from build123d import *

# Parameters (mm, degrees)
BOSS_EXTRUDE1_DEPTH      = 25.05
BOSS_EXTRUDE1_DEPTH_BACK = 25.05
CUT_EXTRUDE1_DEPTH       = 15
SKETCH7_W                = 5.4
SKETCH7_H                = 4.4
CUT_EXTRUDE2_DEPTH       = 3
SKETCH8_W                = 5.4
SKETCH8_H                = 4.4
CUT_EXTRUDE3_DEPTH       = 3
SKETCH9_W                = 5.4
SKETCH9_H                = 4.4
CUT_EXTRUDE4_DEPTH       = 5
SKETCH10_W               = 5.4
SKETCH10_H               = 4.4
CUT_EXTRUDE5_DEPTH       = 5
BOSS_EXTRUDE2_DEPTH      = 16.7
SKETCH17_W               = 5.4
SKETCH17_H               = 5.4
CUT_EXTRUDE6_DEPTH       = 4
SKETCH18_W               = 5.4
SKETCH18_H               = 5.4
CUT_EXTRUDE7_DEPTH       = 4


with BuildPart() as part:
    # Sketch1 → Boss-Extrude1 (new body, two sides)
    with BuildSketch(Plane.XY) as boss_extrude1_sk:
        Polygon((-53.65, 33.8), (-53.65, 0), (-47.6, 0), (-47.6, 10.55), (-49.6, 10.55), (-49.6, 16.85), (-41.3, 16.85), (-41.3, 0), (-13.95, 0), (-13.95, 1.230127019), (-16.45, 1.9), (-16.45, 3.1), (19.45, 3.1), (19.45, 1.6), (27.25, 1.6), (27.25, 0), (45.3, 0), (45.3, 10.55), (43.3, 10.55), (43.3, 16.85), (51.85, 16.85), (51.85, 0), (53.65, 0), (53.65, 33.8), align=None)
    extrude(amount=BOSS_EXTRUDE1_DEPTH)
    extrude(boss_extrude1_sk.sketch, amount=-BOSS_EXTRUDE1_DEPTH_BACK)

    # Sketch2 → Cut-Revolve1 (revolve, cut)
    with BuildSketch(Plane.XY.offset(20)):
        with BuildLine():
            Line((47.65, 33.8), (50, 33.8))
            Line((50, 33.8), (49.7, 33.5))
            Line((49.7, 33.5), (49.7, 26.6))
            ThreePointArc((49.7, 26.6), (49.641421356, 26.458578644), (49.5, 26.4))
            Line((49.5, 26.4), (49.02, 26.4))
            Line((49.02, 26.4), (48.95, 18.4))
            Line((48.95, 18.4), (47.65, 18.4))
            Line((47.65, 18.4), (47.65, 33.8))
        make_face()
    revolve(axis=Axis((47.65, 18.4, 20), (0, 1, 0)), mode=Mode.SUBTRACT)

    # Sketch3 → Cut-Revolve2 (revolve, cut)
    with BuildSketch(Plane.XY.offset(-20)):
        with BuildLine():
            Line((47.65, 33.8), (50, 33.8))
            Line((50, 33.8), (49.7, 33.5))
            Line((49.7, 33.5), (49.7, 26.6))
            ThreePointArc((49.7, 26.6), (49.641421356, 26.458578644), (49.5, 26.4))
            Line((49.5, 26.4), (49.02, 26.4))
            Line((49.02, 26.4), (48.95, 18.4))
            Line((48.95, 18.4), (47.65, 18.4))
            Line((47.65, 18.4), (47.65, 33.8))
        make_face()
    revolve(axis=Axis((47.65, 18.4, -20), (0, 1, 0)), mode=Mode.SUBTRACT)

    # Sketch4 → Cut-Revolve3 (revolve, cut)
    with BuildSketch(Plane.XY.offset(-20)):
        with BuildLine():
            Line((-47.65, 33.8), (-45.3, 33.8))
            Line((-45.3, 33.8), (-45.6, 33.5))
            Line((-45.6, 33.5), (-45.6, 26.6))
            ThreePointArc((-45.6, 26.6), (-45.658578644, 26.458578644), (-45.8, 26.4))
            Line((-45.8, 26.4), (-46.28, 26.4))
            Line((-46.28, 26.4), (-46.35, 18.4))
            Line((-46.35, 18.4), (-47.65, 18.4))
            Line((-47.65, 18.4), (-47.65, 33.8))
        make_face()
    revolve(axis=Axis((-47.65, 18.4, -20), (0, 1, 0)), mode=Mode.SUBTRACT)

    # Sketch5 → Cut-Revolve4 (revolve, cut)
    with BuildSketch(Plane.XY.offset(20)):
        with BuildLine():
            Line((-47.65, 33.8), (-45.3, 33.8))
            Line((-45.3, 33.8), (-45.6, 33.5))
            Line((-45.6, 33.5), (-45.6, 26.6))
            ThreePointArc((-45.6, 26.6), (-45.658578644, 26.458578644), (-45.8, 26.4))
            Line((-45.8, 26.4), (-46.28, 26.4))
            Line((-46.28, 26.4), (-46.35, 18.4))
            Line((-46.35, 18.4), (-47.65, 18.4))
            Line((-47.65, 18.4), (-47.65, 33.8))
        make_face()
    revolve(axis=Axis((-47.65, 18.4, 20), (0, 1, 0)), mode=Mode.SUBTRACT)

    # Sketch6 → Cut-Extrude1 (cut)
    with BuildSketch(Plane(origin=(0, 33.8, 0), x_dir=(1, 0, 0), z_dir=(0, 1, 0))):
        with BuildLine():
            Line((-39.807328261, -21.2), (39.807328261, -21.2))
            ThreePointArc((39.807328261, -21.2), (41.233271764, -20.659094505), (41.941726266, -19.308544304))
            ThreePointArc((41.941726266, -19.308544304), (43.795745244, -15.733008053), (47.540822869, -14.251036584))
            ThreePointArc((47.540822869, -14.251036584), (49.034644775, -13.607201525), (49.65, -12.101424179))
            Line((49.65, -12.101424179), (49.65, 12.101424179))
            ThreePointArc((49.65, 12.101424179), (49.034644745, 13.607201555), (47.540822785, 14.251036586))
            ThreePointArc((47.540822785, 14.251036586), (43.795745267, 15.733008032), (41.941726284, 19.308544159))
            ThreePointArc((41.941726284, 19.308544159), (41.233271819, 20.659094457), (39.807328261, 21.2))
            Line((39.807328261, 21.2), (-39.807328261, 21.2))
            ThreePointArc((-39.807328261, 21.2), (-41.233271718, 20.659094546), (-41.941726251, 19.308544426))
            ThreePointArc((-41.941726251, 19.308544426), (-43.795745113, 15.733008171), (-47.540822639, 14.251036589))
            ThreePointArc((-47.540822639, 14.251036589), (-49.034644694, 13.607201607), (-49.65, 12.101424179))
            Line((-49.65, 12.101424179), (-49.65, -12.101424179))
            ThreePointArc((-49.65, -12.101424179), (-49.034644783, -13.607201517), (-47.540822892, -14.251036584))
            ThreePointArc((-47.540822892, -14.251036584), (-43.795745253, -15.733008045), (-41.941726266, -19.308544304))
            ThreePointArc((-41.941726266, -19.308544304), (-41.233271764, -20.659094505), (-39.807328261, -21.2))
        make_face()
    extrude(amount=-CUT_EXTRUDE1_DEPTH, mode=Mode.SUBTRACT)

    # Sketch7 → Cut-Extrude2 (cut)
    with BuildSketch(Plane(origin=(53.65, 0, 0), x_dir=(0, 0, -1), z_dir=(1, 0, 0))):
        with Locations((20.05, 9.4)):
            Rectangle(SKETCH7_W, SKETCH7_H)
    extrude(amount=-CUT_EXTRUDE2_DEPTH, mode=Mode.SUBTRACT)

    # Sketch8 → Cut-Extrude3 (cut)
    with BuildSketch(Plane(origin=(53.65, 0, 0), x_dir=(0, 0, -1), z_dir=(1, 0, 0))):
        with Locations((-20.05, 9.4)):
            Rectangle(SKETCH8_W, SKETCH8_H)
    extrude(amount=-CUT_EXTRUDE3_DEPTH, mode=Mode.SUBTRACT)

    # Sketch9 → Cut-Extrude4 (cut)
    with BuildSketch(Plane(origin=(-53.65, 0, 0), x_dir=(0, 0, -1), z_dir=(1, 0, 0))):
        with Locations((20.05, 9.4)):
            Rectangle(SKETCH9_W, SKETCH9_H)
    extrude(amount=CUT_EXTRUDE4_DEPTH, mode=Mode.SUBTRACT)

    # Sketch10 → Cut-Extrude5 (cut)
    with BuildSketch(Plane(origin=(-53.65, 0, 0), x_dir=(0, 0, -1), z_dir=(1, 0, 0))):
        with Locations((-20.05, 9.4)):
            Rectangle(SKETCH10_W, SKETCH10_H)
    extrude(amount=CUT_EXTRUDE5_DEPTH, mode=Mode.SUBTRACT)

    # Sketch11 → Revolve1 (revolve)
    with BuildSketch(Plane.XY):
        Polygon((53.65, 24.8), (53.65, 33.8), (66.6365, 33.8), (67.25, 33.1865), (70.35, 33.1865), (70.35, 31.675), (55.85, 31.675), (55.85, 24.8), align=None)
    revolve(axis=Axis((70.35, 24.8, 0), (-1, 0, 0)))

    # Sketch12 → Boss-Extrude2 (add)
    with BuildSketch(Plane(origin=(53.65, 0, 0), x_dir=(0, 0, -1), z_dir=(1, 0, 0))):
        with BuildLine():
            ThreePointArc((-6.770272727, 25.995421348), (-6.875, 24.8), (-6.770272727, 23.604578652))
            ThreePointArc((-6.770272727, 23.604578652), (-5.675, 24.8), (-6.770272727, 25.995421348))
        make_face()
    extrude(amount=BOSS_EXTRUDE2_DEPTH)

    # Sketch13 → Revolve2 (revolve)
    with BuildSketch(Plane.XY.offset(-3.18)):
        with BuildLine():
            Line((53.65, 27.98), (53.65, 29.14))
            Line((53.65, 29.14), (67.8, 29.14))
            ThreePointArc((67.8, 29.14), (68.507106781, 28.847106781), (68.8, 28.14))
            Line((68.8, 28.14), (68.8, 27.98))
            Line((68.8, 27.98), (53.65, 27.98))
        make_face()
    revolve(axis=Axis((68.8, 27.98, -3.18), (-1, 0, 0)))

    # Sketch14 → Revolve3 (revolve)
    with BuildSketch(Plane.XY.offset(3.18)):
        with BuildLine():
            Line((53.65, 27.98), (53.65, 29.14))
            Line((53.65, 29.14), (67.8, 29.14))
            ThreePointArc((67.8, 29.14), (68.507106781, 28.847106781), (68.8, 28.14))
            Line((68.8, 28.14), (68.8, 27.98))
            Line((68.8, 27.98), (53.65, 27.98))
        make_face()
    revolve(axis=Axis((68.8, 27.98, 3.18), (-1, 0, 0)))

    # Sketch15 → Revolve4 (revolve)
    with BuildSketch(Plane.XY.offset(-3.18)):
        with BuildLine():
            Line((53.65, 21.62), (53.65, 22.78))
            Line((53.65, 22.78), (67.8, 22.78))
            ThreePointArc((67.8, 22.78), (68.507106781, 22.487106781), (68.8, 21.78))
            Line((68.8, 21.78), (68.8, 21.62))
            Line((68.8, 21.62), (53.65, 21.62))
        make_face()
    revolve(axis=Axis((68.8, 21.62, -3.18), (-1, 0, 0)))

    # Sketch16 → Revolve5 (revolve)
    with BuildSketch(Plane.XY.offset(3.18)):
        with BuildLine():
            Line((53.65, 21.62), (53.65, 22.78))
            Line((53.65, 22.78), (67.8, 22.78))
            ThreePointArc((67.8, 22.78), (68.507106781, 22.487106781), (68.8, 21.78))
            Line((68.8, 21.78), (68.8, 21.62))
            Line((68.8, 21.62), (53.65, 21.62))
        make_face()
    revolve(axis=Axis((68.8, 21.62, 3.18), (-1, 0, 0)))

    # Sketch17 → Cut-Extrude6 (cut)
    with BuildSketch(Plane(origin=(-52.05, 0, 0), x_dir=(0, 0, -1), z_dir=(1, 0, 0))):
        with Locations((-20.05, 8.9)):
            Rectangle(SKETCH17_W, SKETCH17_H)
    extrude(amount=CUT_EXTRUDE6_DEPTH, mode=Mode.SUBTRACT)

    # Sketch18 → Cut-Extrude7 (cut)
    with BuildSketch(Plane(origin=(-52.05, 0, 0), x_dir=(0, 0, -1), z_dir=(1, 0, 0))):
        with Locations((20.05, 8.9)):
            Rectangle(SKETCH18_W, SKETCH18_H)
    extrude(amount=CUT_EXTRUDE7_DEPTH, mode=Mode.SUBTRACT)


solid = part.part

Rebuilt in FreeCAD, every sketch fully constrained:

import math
import FreeCAD as App
import Part
import Sketcher
Q = App.Units.Quantity

doc = App.newDocument("Part")
body = doc.addObject("PartDesign::Body", "Body")

# Sketch on XY plane
sketch1 = body.newObject("Sketcher::SketchObject", "Sketch")
sketch1.AttachmentSupport = (doc.getObject("XY_Plane"), [""])
sketch1.MapMode = "FlatFace"
sketch1.addGeometry([
    Part.LineSegment(App.Vector(-53.6, 33.8, 0), App.Vector(-53.6, 0, 0)),  # 0
    Part.LineSegment(App.Vector(-53.6, 0, 0), App.Vector(-47.6, 0, 0)),  # 1
    Part.LineSegment(App.Vector(-47.6, 0, 0), App.Vector(-47.6, 10.6, 0)),  # 2
    Part.LineSegment(App.Vector(-47.6, 10.6, 0), App.Vector(-49.6, 10.6, 0)),  # 3
    Part.LineSegment(App.Vector(-49.6, 10.6, 0), App.Vector(-49.6, 16.9, 0)),  # 4
    Part.LineSegment(App.Vector(-49.6, 16.9, 0), App.Vector(-41.3, 16.9, 0)),  # 5
    Part.LineSegment(App.Vector(-41.3, 16.9, 0), App.Vector(-41.3, 0, 0)),  # 6
    Part.LineSegment(App.Vector(-41.3, 0, 0), App.Vector(-13.9, 0, 0)),  # 7
    Part.LineSegment(App.Vector(-13.9, 0, 0), App.Vector(-13.9, 1.2, 0)),  # 8
    Part.LineSegment(App.Vector(-13.9, 1.2, 0), App.Vector(-16.4, 1.9, 0)),  # 9
    Part.LineSegment(App.Vector(-16.4, 1.9, 0), App.Vector(-16.4, 3.1, 0)),  # 10
    Part.LineSegment(App.Vector(-16.4, 3.1, 0), App.Vector(19.4, 3.1, 0)),  # 11
    Part.LineSegment(App.Vector(19.4, 3.1, 0), App.Vector(19.4, 1.6, 0)),  # 12
    Part.LineSegment(App.Vector(19.4, 1.6, 0), App.Vector(27.2, 1.6, 0)),  # 13
    Part.LineSegment(App.Vector(27.2, 1.6, 0), App.Vector(27.2, 0, 0)),  # 14
    Part.LineSegment(App.Vector(27.2, 0, 0), App.Vector(45.3, 0, 0)),  # 15
    Part.LineSegment(App.Vector(45.3, 0, 0), App.Vector(45.3, 10.6, 0)),  # 16
    Part.LineSegment(App.Vector(45.3, 10.6, 0), App.Vector(43.3, 10.6, 0)),  # 17
    Part.LineSegment(App.Vector(43.3, 10.6, 0), App.Vector(43.3, 16.9, 0)),  # 18
    Part.LineSegment(App.Vector(43.3, 16.9, 0), App.Vector(51.9, 16.9, 0)),  # 19
    Part.LineSegment(App.Vector(51.9, 16.9, 0), App.Vector(51.9, 0, 0)),  # 20
    Part.LineSegment(App.Vector(51.9, 0, 0), App.Vector(53.6, 0, 0)),  # 21
    Part.LineSegment(App.Vector(53.6, 0, 0), App.Vector(53.6, 33.8, 0)),  # 22
    Part.LineSegment(App.Vector(53.6, 33.8, 0), App.Vector(-53.6, 33.8, 0)),  # 23
], False)
sketch1.addConstraint([
    Sketcher.Constraint("Coincident", 0, 2, 1, 1),
    Sketcher.Constraint("Coincident", 1, 2, 2, 1),
    Sketcher.Constraint("Coincident", 2, 2, 3, 1),
    Sketcher.Constraint("Coincident", 3, 2, 4, 1),
    Sketcher.Constraint("Coincident", 4, 2, 5, 1),
    Sketcher.Constraint("Coincident", 5, 2, 6, 1),
    Sketcher.Constraint("Coincident", 6, 2, 7, 1),
    Sketcher.Constraint("Coincident", 7, 2, 8, 1),
    Sketcher.Constraint("Coincident", 8, 2, 9, 1),
    Sketcher.Constraint("Coincident", 9, 2, 10, 1),
    Sketcher.Constraint("Coincident", 10, 2, 11, 1),
    Sketcher.Constraint("Coincident", 11, 2, 12, 1),
    Sketcher.Constraint("Coincident", 12, 2, 13, 1),
    Sketcher.Constraint("Coincident", 13, 2, 14, 1),
    Sketcher.Constraint("Coincident", 14, 2, 15, 1),
    Sketcher.Constraint("Coincident", 15, 2, 16, 1),
    Sketcher.Constraint("Coincident", 16, 2, 17, 1),
    Sketcher.Constraint("Coincident", 17, 2, 18, 1),
    Sketcher.Constraint("Coincident", 18, 2, 19, 1),
    Sketcher.Constraint("Coincident", 19, 2, 20, 1),
    Sketcher.Constraint("Coincident", 20, 2, 21, 1),
    Sketcher.Constraint("Coincident", 21, 2, 22, 1),
    Sketcher.Constraint("Coincident", 22, 2, 23, 1),
    Sketcher.Constraint("Coincident", 23, 2, 0, 1),
    Sketcher.Constraint("Vertical", 0),
    Sketcher.Constraint("Horizontal", 1),
    Sketcher.Constraint("Vertical", 2),
    Sketcher.Constraint("Horizontal", 3),
    Sketcher.Constraint("Vertical", 4),
    Sketcher.Constraint("Horizontal", 5),
    Sketcher.Constraint("Vertical", 6),
    Sketcher.Constraint("Horizontal", 7),
    Sketcher.Constraint("Vertical", 8),
    Sketcher.Constraint("Vertical", 10),
    Sketcher.Constraint("Horizontal", 11),
    Sketcher.Constraint("Vertical", 12),
    Sketcher.Constraint("Horizontal", 13),
    Sketcher.Constraint("Vertical", 14),
    Sketcher.Constraint("Horizontal", 15),
    Sketcher.Constraint("Vertical", 16),
    Sketcher.Constraint("Horizontal", 17),
    Sketcher.Constraint("Vertical", 18),
    Sketcher.Constraint("Horizontal", 19),
    Sketcher.Constraint("Vertical", 20),
    Sketcher.Constraint("Horizontal", 21),
    Sketcher.Constraint("Vertical", 22),
    Sketcher.Constraint("Horizontal", 23),
    Sketcher.Constraint("Symmetric", 0, 2, 21, 2, -1, 1),
    Sketcher.Constraint("PointOnObject", 0, 2, -1),
    Sketcher.Constraint("PointOnObject", 6, 2, -1),
    Sketcher.Constraint("PointOnObject", 14, 2, -1),
    Sketcher.Constraint("Horizontal", 3, 2, 16, 2),
    Sketcher.Constraint("Horizontal", 5, 2, 18, 2),
    Sketcher.Constraint("Equal", 3, 17),
    Sketcher.Constraint("DistanceX", 3, 2, 3, 1, 2.0),
    Sketcher.Constraint("Angle", 9, Q("165 deg")),
    Sketcher.Constraint("DistanceX", 5, 1, 5, 2, 8.3),
    Sketcher.Constraint("DistanceX", 11, 1, 11, 2, 35.9),
    Sketcher.Constraint("DistanceX", 13, 1, 13, 2, 7.8),
    Sketcher.Constraint("DistanceX", 21, 1, 21, 2, 1.8),
    Sketcher.Constraint("DistanceX", 23, 2, 23, 1, 107.3),
    Sketcher.Constraint("DistanceY", 0, 2, 0, 1, 33.8),
    Sketcher.Constraint("DistanceY", 4, 1, 4, 2, 6.3),
    Sketcher.Constraint("DistanceY", 10, 1, 10, 2, 1.2),
    Sketcher.Constraint("DistanceY", 12, 2, 12, 1, 1.5),
    Sketcher.Constraint("DistanceY", 14, 2, 14, 1, 1.6),
    Sketcher.Constraint("DistanceX", 1, 1, 1, 2, 6.05),
    Sketcher.Constraint("DistanceX", 7, 1, 7, 2, 27.35),
    Sketcher.Constraint("DistanceX", 15, 1, 15, 2, 18.05),
    Sketcher.Constraint("DistanceX", 19, 1, 19, 2, 8.55),
    Sketcher.Constraint("DistanceY", 2, 1, 2, 2, 10.55),
])
pad1 = body.newObject("PartDesign::Pad", "Pad")
pad1.Profile = sketch1
pad1.Type = "TwoLengths"
pad1.Length = 25.05
pad1.Length2 = 25.05

# Sketch on XY plane
sketch2 = body.newObject("Sketcher::SketchObject", "Sketch001")
sketch2.AttachmentSupport = (doc.getObject("XY_Plane"), [""])
sketch2.MapMode = "FlatFace"
sketch2.AttachmentOffset = App.Placement(App.Vector(0, 0, 20), App.Rotation())
sketch2.addGeometry([
    Part.LineSegment(App.Vector(50, 33.8, 0), App.Vector(47.65, 33.8, 0)),  # 0
    Part.LineSegment(App.Vector(47.65, 33.8, 0), App.Vector(47.65, 18.4, 0)),  # 1
    Part.LineSegment(App.Vector(47.65, 18.4, 0), App.Vector(48.95, 18.4, 0)),  # 2
    Part.LineSegment(App.Vector(48.95, 18.4, 0), App.Vector(49.02, 26.4, 0)),  # 3
    Part.LineSegment(App.Vector(49.02, 26.4, 0), App.Vector(49.5, 26.4, 0)),  # 4
    Part.ArcOfCircle(Part.Circle(App.Vector(49.5, 26.6, 0), App.Vector(0, 0, 1), 0.2), math.radians(-90), math.radians(0)),  # 5
    Part.LineSegment(App.Vector(49.7, 26.6, 0), App.Vector(49.7, 33.5, 0)),  # 6
    Part.LineSegment(App.Vector(49.7, 33.5, 0), App.Vector(50, 33.8, 0)),  # 7
], False)
sketch2.addGeometry(Part.LineSegment(App.Vector(47.65, 18.4, 0), App.Vector(47.65, 33.8, 0)), True)  # axis
sketch2.addConstraint([
    Sketcher.Constraint("Coincident", 0, 2, 1, 1),
    Sketcher.Constraint("Coincident", 1, 2, 2, 1),
    Sketcher.Constraint("Coincident", 2, 2, 3, 1),
    Sketcher.Constraint("Coincident", 3, 2, 4, 1),
    Sketcher.Constraint("Tangent", 4, 2, 5, 1),
    Sketcher.Constraint("Tangent", 5, 2, 6, 1),
    Sketcher.Constraint("Coincident", 6, 2, 7, 1),
    Sketcher.Constraint("Coincident", 7, 2, 0, 1),
    Sketcher.Constraint("Horizontal", 0),
    Sketcher.Constraint("Vertical", 1),
    Sketcher.Constraint("Horizontal", 2),
    Sketcher.Constraint("Horizontal", 4),
    Sketcher.Constraint("Vertical", 6),
    Sketcher.Constraint("Vertical", 8),
    Sketcher.Constraint("Coincident", 8, 1, 1, 2),
    Sketcher.Constraint("Horizontal", 7, 2, 8, 2),
    Sketcher.Constraint("Radius", 5, 0.2),
    Sketcher.Constraint("Angle", 7, Q("45 deg")),
    Sketcher.Constraint("DistanceX", 2, 1, 2, 2, 1.3),
    Sketcher.Constraint("DistanceY", 1, 2, 1, 1, 15.4),
    Sketcher.Constraint("DistanceY", 6, 1, 6, 2, 6.9),
    Sketcher.Constraint("DistanceX", -1, 1, 7, 2, 50.0),
    Sketcher.Constraint("DistanceY", 2, 2, 3, 2, 8.0),
    Sketcher.Constraint("DistanceX", 0, 2, 0, 1, 2.35),
    Sketcher.Constraint("DistanceX", 4, 1, 4, 2, 0.48),
    Sketcher.Constraint("DistanceY", -1, 1, 5, 3, 26.6),
])
groove = body.newObject("PartDesign::Groove", "Groove")
groove.Profile = sketch2
groove.ReferenceAxis = (sketch2, ["Axis0"])
groove.Angle = 360

# Sketch on XY plane
sketch3 = body.newObject("Sketcher::SketchObject", "Sketch002")
sketch3.AttachmentSupport = (doc.getObject("XY_Plane"), [""])
sketch3.MapMode = "FlatFace"
sketch3.AttachmentOffset = App.Placement(App.Vector(0, 0, -20), App.Rotation())
sketch3.addGeometry([
    Part.LineSegment(App.Vector(50, 33.8, 0), App.Vector(47.65, 33.8, 0)),  # 0
    Part.LineSegment(App.Vector(47.65, 33.8, 0), App.Vector(47.65, 18.4, 0)),  # 1
    Part.LineSegment(App.Vector(47.65, 18.4, 0), App.Vector(48.95, 18.4, 0)),  # 2
    Part.LineSegment(App.Vector(48.95, 18.4, 0), App.Vector(49.02, 26.4, 0)),  # 3
    Part.LineSegment(App.Vector(49.02, 26.4, 0), App.Vector(49.5, 26.4, 0)),  # 4
    Part.ArcOfCircle(Part.Circle(App.Vector(49.5, 26.6, 0), App.Vector(0, 0, 1), 0.2), math.radians(-90), math.radians(0)),  # 5
    Part.LineSegment(App.Vector(49.7, 26.6, 0), App.Vector(49.7, 33.5, 0)),  # 6
    Part.LineSegment(App.Vector(49.7, 33.5, 0), App.Vector(50, 33.8, 0)),  # 7
], False)
sketch3.addGeometry(Part.LineSegment(App.Vector(47.65, 18.4, 0), App.Vector(47.65, 33.8, 0)), True)  # axis
sketch3.addConstraint([
    Sketcher.Constraint("Coincident", 0, 2, 1, 1),
    Sketcher.Constraint("Coincident", 1, 2, 2, 1),
    Sketcher.Constraint("Coincident", 2, 2, 3, 1),
    Sketcher.Constraint("Coincident", 3, 2, 4, 1),
    Sketcher.Constraint("Tangent", 4, 2, 5, 1),
    Sketcher.Constraint("Tangent", 5, 2, 6, 1),
    Sketcher.Constraint("Coincident", 6, 2, 7, 1),
    Sketcher.Constraint("Coincident", 7, 2, 0, 1),
    Sketcher.Constraint("Horizontal", 0),
    Sketcher.Constraint("Vertical", 1),
    Sketcher.Constraint("Horizontal", 2),
    Sketcher.Constraint("Horizontal", 4),
    Sketcher.Constraint("Vertical", 6),
    Sketcher.Constraint("Vertical", 8),
    Sketcher.Constraint("Coincident", 8, 1, 1, 2),
    Sketcher.Constraint("Horizontal", 7, 2, 8, 2),
    Sketcher.Constraint("Radius", 5, 0.2),
    Sketcher.Constraint("Angle", 7, Q("45 deg")),
    Sketcher.Constraint("DistanceX", 2, 1, 2, 2, 1.3),
    Sketcher.Constraint("DistanceY", 1, 2, 1, 1, 15.4),
    Sketcher.Constraint("DistanceY", 6, 1, 6, 2, 6.9),
    Sketcher.Constraint("DistanceX", -1, 1, 7, 2, 50.0),
    Sketcher.Constraint("DistanceY", 2, 2, 3, 2, 8.0),
    Sketcher.Constraint("DistanceX", 0, 2, 0, 1, 2.35),
    Sketcher.Constraint("DistanceX", 4, 1, 4, 2, 0.48),
    Sketcher.Constraint("DistanceY", -1, 1, 5, 3, 26.6),
])
groove2 = body.newObject("PartDesign::Groove", "Groove001")
groove2.Profile = sketch3
groove2.ReferenceAxis = (sketch3, ["Axis0"])
groove2.Angle = 360

# Sketch on XY plane
sketch4 = body.newObject("Sketcher::SketchObject", "Sketch003")
sketch4.AttachmentSupport = (doc.getObject("XY_Plane"), [""])
sketch4.MapMode = "FlatFace"
sketch4.AttachmentOffset = App.Placement(App.Vector(0, 0, -20), App.Rotation())
sketch4.addGeometry([
    Part.LineSegment(App.Vector(-45.3, 33.8, 0), App.Vector(-47.65, 33.8, 0)),  # 0
    Part.LineSegment(App.Vector(-47.65, 33.8, 0), App.Vector(-47.65, 18.4, 0)),  # 1
    Part.LineSegment(App.Vector(-47.65, 18.4, 0), App.Vector(-46.35, 18.4, 0)),  # 2
    Part.LineSegment(App.Vector(-46.35, 18.4, 0), App.Vector(-46.28, 26.4, 0)),  # 3
    Part.LineSegment(App.Vector(-46.28, 26.4, 0), App.Vector(-45.8, 26.4, 0)),  # 4
    Part.ArcOfCircle(Part.Circle(App.Vector(-45.8, 26.6, 0), App.Vector(0, 0, 1), 0.2), math.radians(-90), math.radians(0)),  # 5
    Part.LineSegment(App.Vector(-45.6, 26.6, 0), App.Vector(-45.6, 33.5, 0)),  # 6
    Part.LineSegment(App.Vector(-45.6, 33.5, 0), App.Vector(-45.3, 33.8, 0)),  # 7
], False)
sketch4.addGeometry(Part.LineSegment(App.Vector(-47.65, 18.4, 0), App.Vector(-47.65, 33.8, 0)), True)  # axis
sketch4.addConstraint([
    Sketcher.Constraint("Coincident", 0, 2, 1, 1),
    Sketcher.Constraint("Coincident", 1, 2, 2, 1),
    Sketcher.Constraint("Coincident", 2, 2, 3, 1),
    Sketcher.Constraint("Coincident", 3, 2, 4, 1),
    Sketcher.Constraint("Tangent", 4, 2, 5, 1),
    Sketcher.Constraint("Tangent", 5, 2, 6, 1),
    Sketcher.Constraint("Coincident", 6, 2, 7, 1),
    Sketcher.Constraint("Coincident", 7, 2, 0, 1),
    Sketcher.Constraint("Horizontal", 0),
    Sketcher.Constraint("Vertical", 1),
    Sketcher.Constraint("Horizontal", 2),
    Sketcher.Constraint("Horizontal", 4),
    Sketcher.Constraint("Vertical", 6),
    Sketcher.Constraint("Vertical", 8),
    Sketcher.Constraint("Coincident", 8, 1, 1, 2),
    Sketcher.Constraint("Horizontal", 7, 2, 8, 2),
    Sketcher.Constraint("Radius", 5, 0.2),
    Sketcher.Constraint("Angle", 7, Q("45 deg")),
    Sketcher.Constraint("DistanceX", 2, 1, 2, 2, 1.3),
    Sketcher.Constraint("DistanceY", 1, 2, 1, 1, 15.4),
    Sketcher.Constraint("DistanceY", 6, 1, 6, 2, 6.9),
    Sketcher.Constraint("DistanceY", 2, 2, 3, 2, 8.0),
    Sketcher.Constraint("DistanceX", 0, 2, 0, 1, 2.35),
    Sketcher.Constraint("DistanceX", 4, 1, 4, 2, 0.48),
    Sketcher.Constraint("DistanceX", 5, 3, -1, 1, 45.8),
    Sketcher.Constraint("DistanceY", -1, 1, 5, 3, 26.6),
])
groove3 = body.newObject("PartDesign::Groove", "Groove002")
groove3.Profile = sketch4
groove3.ReferenceAxis = (sketch4, ["Axis0"])
groove3.Angle = 360

# Sketch on XY plane
sketch5 = body.newObject("Sketcher::SketchObject", "Sketch004")
sketch5.AttachmentSupport = (doc.getObject("XY_Plane"), [""])
sketch5.MapMode = "FlatFace"
sketch5.AttachmentOffset = App.Placement(App.Vector(0, 0, 20), App.Rotation())
sketch5.addGeometry([
    Part.LineSegment(App.Vector(-45.3, 33.8, 0), App.Vector(-47.65, 33.8, 0)),  # 0
    Part.LineSegment(App.Vector(-47.65, 33.8, 0), App.Vector(-47.65, 18.4, 0)),  # 1
    Part.LineSegment(App.Vector(-47.65, 18.4, 0), App.Vector(-46.35, 18.4, 0)),  # 2
    Part.LineSegment(App.Vector(-46.35, 18.4, 0), App.Vector(-46.28, 26.4, 0)),  # 3
    Part.LineSegment(App.Vector(-46.28, 26.4, 0), App.Vector(-45.8, 26.4, 0)),  # 4
    Part.ArcOfCircle(Part.Circle(App.Vector(-45.8, 26.6, 0), App.Vector(0, 0, 1), 0.2), math.radians(-90), math.radians(0)),  # 5
    Part.LineSegment(App.Vector(-45.6, 26.6, 0), App.Vector(-45.6, 33.5, 0)),  # 6
    Part.LineSegment(App.Vector(-45.6, 33.5, 0), App.Vector(-45.3, 33.8, 0)),  # 7
], False)
sketch5.addGeometry(Part.LineSegment(App.Vector(-47.65, 18.4, 0), App.Vector(-47.65, 33.8, 0)), True)  # axis
sketch5.addConstraint([
    Sketcher.Constraint("Coincident", 0, 2, 1, 1),
    Sketcher.Constraint("Coincident", 1, 2, 2, 1),
    Sketcher.Constraint("Coincident", 2, 2, 3, 1),
    Sketcher.Constraint("Coincident", 3, 2, 4, 1),
    Sketcher.Constraint("Tangent", 4, 2, 5, 1),
    Sketcher.Constraint("Tangent", 5, 2, 6, 1),
    Sketcher.Constraint("Coincident", 6, 2, 7, 1),
    Sketcher.Constraint("Coincident", 7, 2, 0, 1),
    Sketcher.Constraint("Horizontal", 0),
    Sketcher.Constraint("Vertical", 1),
    Sketcher.Constraint("Horizontal", 2),
    Sketcher.Constraint("Horizontal", 4),
    Sketcher.Constraint("Vertical", 6),
    Sketcher.Constraint("Vertical", 8),
    Sketcher.Constraint("Coincident", 8, 1, 1, 2),
    Sketcher.Constraint("Horizontal", 7, 2, 8, 2),
    Sketcher.Constraint("Radius", 5, 0.2),
    Sketcher.Constraint("Angle", 7, Q("45 deg")),
    Sketcher.Constraint("DistanceX", 2, 1, 2, 2, 1.3),
    Sketcher.Constraint("DistanceY", 1, 2, 1, 1, 15.4),
    Sketcher.Constraint("DistanceY", 6, 1, 6, 2, 6.9),
    Sketcher.Constraint("DistanceY", 2, 2, 3, 2, 8.0),
    Sketcher.Constraint("DistanceX", 0, 2, 0, 1, 2.35),
    Sketcher.Constraint("DistanceX", 4, 1, 4, 2, 0.48),
    Sketcher.Constraint("DistanceX", 5, 3, -1, 1, 45.8),
    Sketcher.Constraint("DistanceY", -1, 1, 5, 3, 26.6),
])
groove4 = body.newObject("PartDesign::Groove", "Groove003")
groove4.Profile = sketch5
groove4.ReferenceAxis = (sketch5, ["Axis0"])
groove4.Angle = 360

# Sketch on XZ plane
sketch6 = body.newObject("Sketcher::SketchObject", "Sketch005")
sketch6.AttachmentSupport = (doc.getObject("XZ_Plane"), [""])
sketch6.MapMode = "FlatFace"
sketch6.AttachmentOffset = App.Placement(App.Vector(0, 0, -33.8), App.Rotation())
sketch6.addGeometry([
    Part.LineSegment(App.Vector(-39.8, 21.2, 0), App.Vector(39.8, 21.2, 0)),  # 0
    Part.ArcOfCircle(Part.Circle(App.Vector(39.8, 19, 0), App.Vector(0, 0, 1), 2.2), math.radians(7), math.radians(90)),  # 1
    Part.ArcOfCircle(Part.Circle(App.Vector(47.7, 20, 0), App.Vector(0, 0, 1), 5.8), math.radians(-173), math.radians(-91)),  # 2
    Part.ArcOfCircle(Part.Circle(App.Vector(47.5, 12.1, 0), App.Vector(0, 0, 1), 2.1), math.radians(0), math.radians(89)),  # 3
    Part.LineSegment(App.Vector(49.6, 12.1, 0), App.Vector(49.6, -12.1, 0)),  # 4
    Part.ArcOfCircle(Part.Circle(App.Vector(47.5, -12.1, 0), App.Vector(0, 0, 1), 2.1), math.radians(-89), math.radians(0)),  # 5
    Part.ArcOfCircle(Part.Circle(App.Vector(47.6, -20, 0), App.Vector(0, 0, 1), 5.7), math.radians(91), math.radians(173)),  # 6
    Part.ArcOfCircle(Part.Circle(App.Vector(39.8, -19.1, 0), App.Vector(0, 0, 1), 2.1), math.radians(-90), math.radians(-7)),  # 7
    Part.LineSegment(App.Vector(39.8, -21.2, 0), App.Vector(-39.8, -21.2, 0)),  # 8
    Part.ArcOfCircle(Part.Circle(App.Vector(-39.8, -19.1, 0), App.Vector(0, 0, 1), 2.1), math.radians(-173), math.radians(-90)),  # 9
    Part.ArcOfCircle(Part.Circle(App.Vector(-47.6, -20, 0), App.Vector(0, 0, 1), 5.8), math.radians(7), math.radians(89)),  # 10
    Part.ArcOfCircle(Part.Circle(App.Vector(-47.5, -12.1, 0), App.Vector(0, 0, 1), 2.2), math.radians(180), math.radians(269)),  # 11
    Part.LineSegment(App.Vector(-49.6, -12.1, 0), App.Vector(-49.6, 12.1, 0)),  # 12
    Part.ArcOfCircle(Part.Circle(App.Vector(-47.5, 12.1, 0), App.Vector(0, 0, 1), 2.1), math.radians(91), math.radians(180)),  # 13
    Part.ArcOfCircle(Part.Circle(App.Vector(-47.6, 20, 0), App.Vector(0, 0, 1), 5.8), math.radians(-89), math.radians(-7)),  # 14
    Part.ArcOfCircle(Part.Circle(App.Vector(-39.8, 19, 0), App.Vector(0, 0, 1), 2.2), math.radians(90), math.radians(173)),  # 15
], False)
sketch6.addConstraint([
    Sketcher.Constraint("Tangent", 0, 2, 1, 2),
    Sketcher.Constraint("Tangent", 1, 1, 2, 1),
    Sketcher.Constraint("Tangent", 2, 2, 3, 2),
    Sketcher.Constraint("Tangent", 3, 1, 4, 1),
    Sketcher.Constraint("Tangent", 4, 2, 5, 2),
    Sketcher.Constraint("Tangent", 5, 1, 6, 1),
    Sketcher.Constraint("Tangent", 6, 2, 7, 2),
    Sketcher.Constraint("Tangent", 7, 1, 8, 1),
    Sketcher.Constraint("Tangent", 8, 2, 9, 2),
    Sketcher.Constraint("Tangent", 9, 1, 10, 1),
    Sketcher.Constraint("Tangent", 10, 2, 11, 2),
    Sketcher.Constraint("Tangent", 11, 1, 12, 1),
    Sketcher.Constraint("Tangent", 12, 2, 13, 2),
    Sketcher.Constraint("Tangent", 13, 1, 14, 1),
    Sketcher.Constraint("Tangent", 14, 2, 15, 2),
    Sketcher.Constraint("Tangent", 15, 1, 0, 1),
    Sketcher.Constraint("Horizontal", 0),
    Sketcher.Constraint("Vertical", 4),
    Sketcher.Constraint("Horizontal", 8),
    Sketcher.Constraint("Vertical", 12),
    Sketcher.Constraint("Equal", 1, 3),
    Sketcher.Constraint("Equal", 3, 5),
    Sketcher.Constraint("Equal", 2, 6),
    Sketcher.Constraint("Equal", 5, 7),
    Sketcher.Constraint("Equal", 7, 9),
    Sketcher.Constraint("Equal", 6, 10),
    Sketcher.Constraint("Equal", 9, 11),
    Sketcher.Constraint("Equal", 11, 13),
    Sketcher.Constraint("Equal", 10, 14),
    Sketcher.Constraint("Equal", 13, 15),
    Sketcher.Constraint("Symmetric", 1, 3, 9, 3, -1, 1),
    Sketcher.Constraint("Symmetric", 3, 3, 11, 3, -1, 1),
    Sketcher.Constraint("Symmetric", 6, 3, 14, 3, -1, 1),
    Sketcher.Constraint("Symmetric", 6, 3, 10, 3, -2),
    Sketcher.Constraint("Radius", 1, 2.15),
    Sketcher.Constraint("Radius", 2, 5.75),
    Sketcher.Constraint("DistanceY", -1, 1, 2, 3, 20.0),
    Sketcher.Constraint("DistanceX", 11, 3, 5, 3, 95.0),
    Sketcher.Constraint("DistanceX", 2, 3, 3, 1, 2.0),
    Sketcher.Constraint("DistanceY", -1, 1, 0, 2, 21.2),
])
pocket1 = body.newObject("PartDesign::Pocket", "Pocket")
pocket1.Profile = sketch6
pocket1.Length = 15
pocket1.Reversed = True

# Sketch on YZ plane
sketch7 = body.newObject("Sketcher::SketchObject", "Sketch006")
sketch7.AttachmentSupport = (doc.getObject("YZ_Plane"), [""])
sketch7.MapMode = "FlatFace"
sketch7.AttachmentOffset = App.Placement(App.Vector(0, 0, 53.65), App.Rotation())
sketch7.addGeometry([
    Part.LineSegment(App.Vector(11.6, -17.4, 0), App.Vector(7.2, -17.4, 0)),
    Part.LineSegment(App.Vector(7.2, -17.4, 0), App.Vector(7.2, -22.8, 0)),
    Part.LineSegment(App.Vector(7.2, -22.8, 0), App.Vector(11.6, -22.8, 0)),
    Part.LineSegment(App.Vector(11.6, -22.8, 0), App.Vector(11.6, -17.4, 0)),
], False)
sketch7.addConstraint([
    Sketcher.Constraint("Coincident", 0, 2, 1, 1),
    Sketcher.Constraint("Coincident", 1, 2, 2, 1),
    Sketcher.Constraint("Coincident", 2, 2, 3, 1),
    Sketcher.Constraint("Coincident", 3, 2, 0, 1),
    Sketcher.Constraint("Horizontal", 0),
    Sketcher.Constraint("Vertical", 1),
    Sketcher.Constraint("Horizontal", 2),
    Sketcher.Constraint("Vertical", 3),
    Sketcher.Constraint("DistanceX", 0, 2, 0, 1, 4.4),
    Sketcher.Constraint("DistanceY", 1, 2, 1, 1, 5.4),
    Sketcher.Constraint("DistanceX", -1, 1, 0, 2, 7.2),
    Sketcher.Constraint("DistanceY", 0, 2, -1, 1, 17.35),
])
pocket2 = body.newObject("PartDesign::Pocket", "Pocket001")
pocket2.Profile = sketch7
pocket2.Length = 3

# Sketch on YZ plane
sketch8 = body.newObject("Sketcher::SketchObject", "Sketch007")
sketch8.AttachmentSupport = (doc.getObject("YZ_Plane"), [""])
sketch8.MapMode = "FlatFace"
sketch8.AttachmentOffset = App.Placement(App.Vector(0, 0, 53.65), App.Rotation())
sketch8.addGeometry([
    Part.LineSegment(App.Vector(11.6, 22.8, 0), App.Vector(7.2, 22.8, 0)),
    Part.LineSegment(App.Vector(7.2, 22.8, 0), App.Vector(7.2, 17.4, 0)),
    Part.LineSegment(App.Vector(7.2, 17.4, 0), App.Vector(11.6, 17.4, 0)),
    Part.LineSegment(App.Vector(11.6, 17.4, 0), App.Vector(11.6, 22.8, 0)),
], False)
sketch8.addConstraint([
    Sketcher.Constraint("Coincident", 0, 2, 1, 1),
    Sketcher.Constraint("Coincident", 1, 2, 2, 1),
    Sketcher.Constraint("Coincident", 2, 2, 3, 1),
    Sketcher.Constraint("Coincident", 3, 2, 0, 1),
    Sketcher.Constraint("Horizontal", 0),
    Sketcher.Constraint("Vertical", 1),
    Sketcher.Constraint("Horizontal", 2),
    Sketcher.Constraint("Vertical", 3),
    Sketcher.Constraint("DistanceX", 0, 2, 0, 1, 4.4),
    Sketcher.Constraint("DistanceY", 1, 2, 1, 1, 5.4),
    Sketcher.Constraint("DistanceX", -1, 1, 0, 2, 7.2),
    Sketcher.Constraint("DistanceY", -1, 1, 0, 2, 22.75),
])
pocket3 = body.newObject("PartDesign::Pocket", "Pocket002")
pocket3.Profile = sketch8
pocket3.Length = 3

# Sketch on YZ plane
sketch9 = body.newObject("Sketcher::SketchObject", "Sketch008")
sketch9.AttachmentSupport = (doc.getObject("YZ_Plane"), [""])
sketch9.MapMode = "FlatFace"
sketch9.AttachmentOffset = App.Placement(App.Vector(0, 0, -53.65), App.Rotation())
sketch9.addGeometry([
    Part.LineSegment(App.Vector(11.6, -17.4, 0), App.Vector(7.2, -17.4, 0)),
    Part.LineSegment(App.Vector(7.2, -17.4, 0), App.Vector(7.2, -22.8, 0)),
    Part.LineSegment(App.Vector(7.2, -22.8, 0), App.Vector(11.6, -22.8, 0)),
    Part.LineSegment(App.Vector(11.6, -22.8, 0), App.Vector(11.6, -17.4, 0)),
], False)
sketch9.addConstraint([
    Sketcher.Constraint("Coincident", 0, 2, 1, 1),
    Sketcher.Constraint("Coincident", 1, 2, 2, 1),
    Sketcher.Constraint("Coincident", 2, 2, 3, 1),
    Sketcher.Constraint("Coincident", 3, 2, 0, 1),
    Sketcher.Constraint("Horizontal", 0),
    Sketcher.Constraint("Vertical", 1),
    Sketcher.Constraint("Horizontal", 2),
    Sketcher.Constraint("Vertical", 3),
    Sketcher.Constraint("DistanceX", 0, 2, 0, 1, 4.4),
    Sketcher.Constraint("DistanceY", 1, 2, 1, 1, 5.4),
    Sketcher.Constraint("DistanceX", -1, 1, 0, 2, 7.2),
    Sketcher.Constraint("DistanceY", 0, 2, -1, 1, 17.35),
])
pocket4 = body.newObject("PartDesign::Pocket", "Pocket003")
pocket4.Profile = sketch9
pocket4.Length = 5
pocket4.Reversed = True

# Sketch on YZ plane
sketch10 = body.newObject("Sketcher::SketchObject", "Sketch009")
sketch10.AttachmentSupport = (doc.getObject("YZ_Plane"), [""])
sketch10.MapMode = "FlatFace"
sketch10.AttachmentOffset = App.Placement(App.Vector(0, 0, -53.65), App.Rotation())
sketch10.addGeometry([
    Part.LineSegment(App.Vector(11.6, 22.8, 0), App.Vector(7.2, 22.8, 0)),
    Part.LineSegment(App.Vector(7.2, 22.8, 0), App.Vector(7.2, 17.4, 0)),
    Part.LineSegment(App.Vector(7.2, 17.4, 0), App.Vector(11.6, 17.4, 0)),
    Part.LineSegment(App.Vector(11.6, 17.4, 0), App.Vector(11.6, 22.8, 0)),
], False)
sketch10.addConstraint([
    Sketcher.Constraint("Coincident", 0, 2, 1, 1),
    Sketcher.Constraint("Coincident", 1, 2, 2, 1),
    Sketcher.Constraint("Coincident", 2, 2, 3, 1),
    Sketcher.Constraint("Coincident", 3, 2, 0, 1),
    Sketcher.Constraint("Horizontal", 0),
    Sketcher.Constraint("Vertical", 1),
    Sketcher.Constraint("Horizontal", 2),
    Sketcher.Constraint("Vertical", 3),
    Sketcher.Constraint("DistanceX", 0, 2, 0, 1, 4.4),
    Sketcher.Constraint("DistanceY", 1, 2, 1, 1, 5.4),
    Sketcher.Constraint("DistanceX", -1, 1, 0, 2, 7.2),
    Sketcher.Constraint("DistanceY", -1, 1, 0, 2, 22.75),
])
pocket5 = body.newObject("PartDesign::Pocket", "Pocket004")
pocket5.Profile = sketch10
pocket5.Length = 5
pocket5.Reversed = True

# Sketch on XY plane
sketch11 = body.newObject("Sketcher::SketchObject", "Sketch010")
sketch11.AttachmentSupport = (doc.getObject("XY_Plane"), [""])
sketch11.MapMode = "FlatFace"
sketch11.addGeometry([
    Part.LineSegment(App.Vector(53.6, 33.8, 0), App.Vector(53.6, 24.8, 0)),  # 0
    Part.LineSegment(App.Vector(53.6, 24.8, 0), App.Vector(55.9, 24.8, 0)),  # 1
    Part.LineSegment(App.Vector(55.9, 24.8, 0), App.Vector(55.9, 31.7, 0)),  # 2
    Part.LineSegment(App.Vector(55.9, 31.7, 0), App.Vector(70.3, 31.7, 0)),  # 3
    Part.LineSegment(App.Vector(70.3, 31.7, 0), App.Vector(70.3, 33.2, 0)),  # 4
    Part.LineSegment(App.Vector(70.3, 33.2, 0), App.Vector(67.2, 33.2, 0)),  # 5
    Part.LineSegment(App.Vector(67.2, 33.2, 0), App.Vector(66.6, 33.8, 0)),  # 6
    Part.LineSegment(App.Vector(66.6, 33.8, 0), App.Vector(53.6, 33.8, 0)),  # 7
], False)
sketch11.addGeometry(Part.LineSegment(App.Vector(70.3, 24.8, 0), App.Vector(53.6, 24.8, 0)), True)  # axis
sketch11.addConstraint([
    Sketcher.Constraint("Coincident", 0, 2, 1, 1),
    Sketcher.Constraint("Coincident", 1, 2, 2, 1),
    Sketcher.Constraint("Coincident", 2, 2, 3, 1),
    Sketcher.Constraint("Coincident", 3, 2, 4, 1),
    Sketcher.Constraint("Coincident", 4, 2, 5, 1),
    Sketcher.Constraint("Coincident", 5, 2, 6, 1),
    Sketcher.Constraint("Coincident", 6, 2, 7, 1),
    Sketcher.Constraint("Coincident", 7, 2, 0, 1),
    Sketcher.Constraint("Vertical", 0),
    Sketcher.Constraint("Horizontal", 1),
    Sketcher.Constraint("Vertical", 2),
    Sketcher.Constraint("Horizontal", 3),
    Sketcher.Constraint("Vertical", 4),
    Sketcher.Constraint("Horizontal", 5),
    Sketcher.Constraint("Horizontal", 7),
    Sketcher.Constraint("Horizontal", 8),
    Sketcher.Constraint("Coincident", 8, 2, 0, 2),
    Sketcher.Constraint("Vertical", 4, 2, 8, 1),
    Sketcher.Constraint("DistanceY", 0, 2, 0, 1, 9.0),
    Sketcher.Constraint("Angle", 6, Q("135 deg")),
    Sketcher.Constraint("DistanceX", 1, 1, 1, 2, 2.2),
    Sketcher.Constraint("DistanceX", 3, 1, 3, 2, 14.5),
    Sketcher.Constraint("DistanceX", 5, 2, 5, 1, 3.1),
    Sketcher.Constraint("DistanceY", -1, 1, 0, 2, 24.8),
    Sketcher.Constraint("DistanceY", 2, 1, 2, 2, 6.875),
    Sketcher.Constraint("DistanceX", -1, 1, 0, 2, 53.65),
    Sketcher.Constraint("DistanceX", 7, 2, 7, 1, 12.9865),
])
revolution = body.newObject("PartDesign::Revolution", "Revolution")
revolution.Profile = sketch11
revolution.ReferenceAxis = (sketch11, ["Axis0"])
revolution.Angle = 360

# Sketch on YZ plane
sketch12 = body.newObject("Sketcher::SketchObject", "Sketch011")
sketch12.AttachmentSupport = (doc.getObject("YZ_Plane"), [""])
sketch12.MapMode = "FlatFace"
sketch12.AttachmentOffset = App.Placement(App.Vector(0, 0, 53.65), App.Rotation())
sketch12.addGeometry([
    Part.ArcOfCircle(Part.Circle(App.Vector(24.8, 0, 0), App.Vector(0, 0, 1), 6.9), math.radians(80), math.radians(100)),
    Part.ArcOfCircle(Part.Circle(App.Vector(24.8, 6.9, 0), App.Vector(0, 0, 1), 1.2), math.radians(-175), math.radians(-5)),
], False)
sketch12.addConstraint([
    Sketcher.Constraint("Coincident", 0, 1, 1, 2),
    Sketcher.Constraint("Coincident", 1, 1, 0, 2),
    Sketcher.Constraint("PointOnObject", 0, 3, -1),
    Sketcher.Constraint("Horizontal", 0, 1, 1, 1),
    Sketcher.Constraint("Radius", 1, 1.2),
    Sketcher.Constraint("Radius", 0, 6.875),
    Sketcher.Constraint("DistanceX", -1, 1, 0, 3, 24.8),
    Sketcher.Constraint("DistanceY", -1, 1, 1, 3, 6.875),
])
pad2 = body.newObject("PartDesign::Pad", "Pad001")
pad2.Profile = sketch12
pad2.Length = 16.7

# Sketch on XY plane
sketch13 = body.newObject("Sketcher::SketchObject", "Sketch012")
sketch13.AttachmentSupport = (doc.getObject("XY_Plane"), [""])
sketch13.MapMode = "FlatFace"
sketch13.AttachmentOffset = App.Placement(App.Vector(0, 0, -3.18), App.Rotation())
sketch13.addGeometry([
    Part.LineSegment(App.Vector(53.65, 29.14, 0), App.Vector(53.65, 27.98, 0)),  # 0
    Part.LineSegment(App.Vector(53.65, 27.98, 0), App.Vector(68.8, 27.98, 0)),  # 1
    Part.LineSegment(App.Vector(68.8, 27.98, 0), App.Vector(68.8, 28.14, 0)),  # 2
    Part.ArcOfCircle(Part.Circle(App.Vector(67.8, 28.14, 0), App.Vector(0, 0, 1), 1), math.radians(0), math.radians(90)),  # 3
    Part.LineSegment(App.Vector(67.8, 29.14, 0), App.Vector(53.65, 29.14, 0)),  # 4
], False)
sketch13.addGeometry(Part.LineSegment(App.Vector(68.8, 27.98, 0), App.Vector(53.65, 27.98, 0)), True)  # axis
sketch13.addConstraint([
    Sketcher.Constraint("Coincident", 0, 2, 1, 1),
    Sketcher.Constraint("Coincident", 1, 2, 2, 1),
    Sketcher.Constraint("Tangent", 2, 2, 3, 1),
    Sketcher.Constraint("Tangent", 3, 2, 4, 1),
    Sketcher.Constraint("Coincident", 4, 2, 0, 1),
    Sketcher.Constraint("Vertical", 0),
    Sketcher.Constraint("Horizontal", 1),
    Sketcher.Constraint("Vertical", 2),
    Sketcher.Constraint("Horizontal", 4),
    Sketcher.Constraint("Horizontal", 5),
    Sketcher.Constraint("Coincident", 5, 1, 1, 2),
    Sketcher.Constraint("Vertical", 4, 2, 5, 2),
    Sketcher.Constraint("Radius", 3, 1.0),
    Sketcher.Constraint("DistanceX", 1, 1, 1, 2, 15.15),
    Sketcher.Constraint("DistanceY", 0, 2, 0, 1, 1.16),
    Sketcher.Constraint("DistanceX", -1, 1, 3, 3, 67.8),
    Sketcher.Constraint("DistanceY", -1, 1, 3, 3, 28.14),
])
revolution2 = body.newObject("PartDesign::Revolution", "Revolution001")
revolution2.Profile = sketch13
revolution2.ReferenceAxis = (sketch13, ["Axis0"])
revolution2.Angle = 360

# Sketch on XY plane
sketch14 = body.newObject("Sketcher::SketchObject", "Sketch013")
sketch14.AttachmentSupport = (doc.getObject("XY_Plane"), [""])
sketch14.MapMode = "FlatFace"
sketch14.AttachmentOffset = App.Placement(App.Vector(0, 0, 3.18), App.Rotation())
sketch14.addGeometry([
    Part.LineSegment(App.Vector(53.65, 29.14, 0), App.Vector(53.65, 27.98, 0)),  # 0
    Part.LineSegment(App.Vector(53.65, 27.98, 0), App.Vector(68.8, 27.98, 0)),  # 1
    Part.LineSegment(App.Vector(68.8, 27.98, 0), App.Vector(68.8, 28.14, 0)),  # 2
    Part.ArcOfCircle(Part.Circle(App.Vector(67.8, 28.14, 0), App.Vector(0, 0, 1), 1), math.radians(0), math.radians(90)),  # 3
    Part.LineSegment(App.Vector(67.8, 29.14, 0), App.Vector(53.65, 29.14, 0)),  # 4
], False)
sketch14.addGeometry(Part.LineSegment(App.Vector(68.8, 27.98, 0), App.Vector(53.65, 27.98, 0)), True)  # axis
sketch14.addConstraint([
    Sketcher.Constraint("Coincident", 0, 2, 1, 1),
    Sketcher.Constraint("Coincident", 1, 2, 2, 1),
    Sketcher.Constraint("Tangent", 2, 2, 3, 1),
    Sketcher.Constraint("Tangent", 3, 2, 4, 1),
    Sketcher.Constraint("Coincident", 4, 2, 0, 1),
    Sketcher.Constraint("Vertical", 0),
    Sketcher.Constraint("Horizontal", 1),
    Sketcher.Constraint("Vertical", 2),
    Sketcher.Constraint("Horizontal", 4),
    Sketcher.Constraint("Horizontal", 5),
    Sketcher.Constraint("Coincident", 5, 1, 1, 2),
    Sketcher.Constraint("Vertical", 4, 2, 5, 2),
    Sketcher.Constraint("Radius", 3, 1.0),
    Sketcher.Constraint("DistanceX", 1, 1, 1, 2, 15.15),
    Sketcher.Constraint("DistanceY", 0, 2, 0, 1, 1.16),
    Sketcher.Constraint("DistanceX", -1, 1, 3, 3, 67.8),
    Sketcher.Constraint("DistanceY", -1, 1, 3, 3, 28.14),
])
revolution3 = body.newObject("PartDesign::Revolution", "Revolution002")
revolution3.Profile = sketch14
revolution3.ReferenceAxis = (sketch14, ["Axis0"])
revolution3.Angle = 360

# Sketch on XY plane
sketch15 = body.newObject("Sketcher::SketchObject", "Sketch014")
sketch15.AttachmentSupport = (doc.getObject("XY_Plane"), [""])
sketch15.MapMode = "FlatFace"
sketch15.AttachmentOffset = App.Placement(App.Vector(0, 0, -3.18), App.Rotation())
sketch15.addGeometry([
    Part.LineSegment(App.Vector(53.65, 22.78, 0), App.Vector(53.65, 21.62, 0)),  # 0
    Part.LineSegment(App.Vector(53.65, 21.62, 0), App.Vector(68.8, 21.62, 0)),  # 1
    Part.LineSegment(App.Vector(68.8, 21.62, 0), App.Vector(68.8, 21.78, 0)),  # 2
    Part.ArcOfCircle(Part.Circle(App.Vector(67.8, 21.78, 0), App.Vector(0, 0, 1), 1), math.radians(0), math.radians(90)),  # 3
    Part.LineSegment(App.Vector(67.8, 22.78, 0), App.Vector(53.65, 22.78, 0)),  # 4
], False)
sketch15.addGeometry(Part.LineSegment(App.Vector(68.8, 21.62, 0), App.Vector(53.65, 21.62, 0)), True)  # axis
sketch15.addConstraint([
    Sketcher.Constraint("Coincident", 0, 2, 1, 1),
    Sketcher.Constraint("Coincident", 1, 2, 2, 1),
    Sketcher.Constraint("Tangent", 2, 2, 3, 1),
    Sketcher.Constraint("Tangent", 3, 2, 4, 1),
    Sketcher.Constraint("Coincident", 4, 2, 0, 1),
    Sketcher.Constraint("Vertical", 0),
    Sketcher.Constraint("Horizontal", 1),
    Sketcher.Constraint("Vertical", 2),
    Sketcher.Constraint("Horizontal", 4),
    Sketcher.Constraint("Horizontal", 5),
    Sketcher.Constraint("Coincident", 5, 1, 1, 2),
    Sketcher.Constraint("Vertical", 4, 2, 5, 2),
    Sketcher.Constraint("Radius", 3, 1.0),
    Sketcher.Constraint("DistanceX", 1, 1, 1, 2, 15.15),
    Sketcher.Constraint("DistanceY", 0, 2, 0, 1, 1.16),
    Sketcher.Constraint("DistanceX", -1, 1, 3, 3, 67.8),
    Sketcher.Constraint("DistanceY", -1, 1, 3, 3, 21.78),
])
revolution4 = body.newObject("PartDesign::Revolution", "Revolution003")
revolution4.Profile = sketch15
revolution4.ReferenceAxis = (sketch15, ["Axis0"])
revolution4.Angle = 360

# Sketch on XY plane
sketch16 = body.newObject("Sketcher::SketchObject", "Sketch015")
sketch16.AttachmentSupport = (doc.getObject("XY_Plane"), [""])
sketch16.MapMode = "FlatFace"
sketch16.AttachmentOffset = App.Placement(App.Vector(0, 0, 3.18), App.Rotation())
sketch16.addGeometry([
    Part.LineSegment(App.Vector(53.65, 22.78, 0), App.Vector(53.65, 21.62, 0)),  # 0
    Part.LineSegment(App.Vector(53.65, 21.62, 0), App.Vector(68.8, 21.62, 0)),  # 1
    Part.LineSegment(App.Vector(68.8, 21.62, 0), App.Vector(68.8, 21.78, 0)),  # 2
    Part.ArcOfCircle(Part.Circle(App.Vector(67.8, 21.78, 0), App.Vector(0, 0, 1), 1), math.radians(0), math.radians(90)),  # 3
    Part.LineSegment(App.Vector(67.8, 22.78, 0), App.Vector(53.65, 22.78, 0)),  # 4
], False)
sketch16.addGeometry(Part.LineSegment(App.Vector(68.8, 21.62, 0), App.Vector(53.65, 21.62, 0)), True)  # axis
sketch16.addConstraint([
    Sketcher.Constraint("Coincident", 0, 2, 1, 1),
    Sketcher.Constraint("Coincident", 1, 2, 2, 1),
    Sketcher.Constraint("Tangent", 2, 2, 3, 1),
    Sketcher.Constraint("Tangent", 3, 2, 4, 1),
    Sketcher.Constraint("Coincident", 4, 2, 0, 1),
    Sketcher.Constraint("Vertical", 0),
    Sketcher.Constraint("Horizontal", 1),
    Sketcher.Constraint("Vertical", 2),
    Sketcher.Constraint("Horizontal", 4),
    Sketcher.Constraint("Horizontal", 5),
    Sketcher.Constraint("Coincident", 5, 1, 1, 2),
    Sketcher.Constraint("Vertical", 4, 2, 5, 2),
    Sketcher.Constraint("Radius", 3, 1.0),
    Sketcher.Constraint("DistanceX", 1, 1, 1, 2, 15.15),
    Sketcher.Constraint("DistanceY", 0, 2, 0, 1, 1.16),
    Sketcher.Constraint("DistanceX", -1, 1, 3, 3, 67.8),
    Sketcher.Constraint("DistanceY", -1, 1, 3, 3, 21.78),
])
revolution5 = body.newObject("PartDesign::Revolution", "Revolution004")
revolution5.Profile = sketch16
revolution5.ReferenceAxis = (sketch16, ["Axis0"])
revolution5.Angle = 360

# Sketch on YZ plane
sketch17 = body.newObject("Sketcher::SketchObject", "Sketch016")
sketch17.AttachmentSupport = (doc.getObject("YZ_Plane"), [""])
sketch17.MapMode = "FlatFace"
sketch17.AttachmentOffset = App.Placement(App.Vector(0, 0, -52.05), App.Rotation())
sketch17.addGeometry([
    Part.LineSegment(App.Vector(12, 23, 0), App.Vector(6, 23, 0)),
    Part.LineSegment(App.Vector(6, 23, 0), App.Vector(6, 17, 0)),
    Part.LineSegment(App.Vector(6, 17, 0), App.Vector(12, 17, 0)),
    Part.LineSegment(App.Vector(12, 17, 0), App.Vector(12, 23, 0)),
], False)
sketch17.addConstraint([
    Sketcher.Constraint("Coincident", 0, 2, 1, 1),
    Sketcher.Constraint("Coincident", 1, 2, 2, 1),
    Sketcher.Constraint("Coincident", 2, 2, 3, 1),
    Sketcher.Constraint("Coincident", 3, 2, 0, 1),
    Sketcher.Constraint("Horizontal", 0),
    Sketcher.Constraint("Vertical", 1),
    Sketcher.Constraint("Horizontal", 2),
    Sketcher.Constraint("Vertical", 3),
    Sketcher.Constraint("Equal", 2, 1),
    Sketcher.Constraint("DistanceX", 0, 2, 0, 1, 5.4),
    Sketcher.Constraint("DistanceX", -1, 1, 0, 2, 6.2),
    Sketcher.Constraint("DistanceY", -1, 1, 0, 2, 22.75),
])
pocket6 = body.newObject("PartDesign::Pocket", "Pocket005")
pocket6.Profile = sketch17
pocket6.Length = 4
pocket6.Reversed = True

# Sketch on YZ plane
sketch18 = body.newObject("Sketcher::SketchObject", "Sketch017")
sketch18.AttachmentSupport = (doc.getObject("YZ_Plane"), [""])
sketch18.MapMode = "FlatFace"
sketch18.AttachmentOffset = App.Placement(App.Vector(0, 0, -52.05), App.Rotation())
sketch18.addGeometry([
    Part.LineSegment(App.Vector(12, -17, 0), App.Vector(6, -17, 0)),
    Part.LineSegment(App.Vector(6, -17, 0), App.Vector(6, -23, 0)),
    Part.LineSegment(App.Vector(6, -23, 0), App.Vector(12, -23, 0)),
    Part.LineSegment(App.Vector(12, -23, 0), App.Vector(12, -17, 0)),
], False)
sketch18.addConstraint([
    Sketcher.Constraint("Coincident", 0, 2, 1, 1),
    Sketcher.Constraint("Coincident", 1, 2, 2, 1),
    Sketcher.Constraint("Coincident", 2, 2, 3, 1),
    Sketcher.Constraint("Coincident", 3, 2, 0, 1),
    Sketcher.Constraint("Horizontal", 0),
    Sketcher.Constraint("Vertical", 1),
    Sketcher.Constraint("Horizontal", 2),
    Sketcher.Constraint("Vertical", 3),
    Sketcher.Constraint("Equal", 2, 1),
    Sketcher.Constraint("DistanceX", 0, 2, 0, 1, 5.4),
    Sketcher.Constraint("DistanceX", -1, 1, 0, 2, 6.2),
    Sketcher.Constraint("DistanceY", 0, 2, -1, 1, 17.35),
])
pocket7 = body.newObject("PartDesign::Pocket", "Pocket006")
pocket7.Profile = sketch18
pocket7.Length = 4
pocket7.Reversed = True

doc.recompute()
